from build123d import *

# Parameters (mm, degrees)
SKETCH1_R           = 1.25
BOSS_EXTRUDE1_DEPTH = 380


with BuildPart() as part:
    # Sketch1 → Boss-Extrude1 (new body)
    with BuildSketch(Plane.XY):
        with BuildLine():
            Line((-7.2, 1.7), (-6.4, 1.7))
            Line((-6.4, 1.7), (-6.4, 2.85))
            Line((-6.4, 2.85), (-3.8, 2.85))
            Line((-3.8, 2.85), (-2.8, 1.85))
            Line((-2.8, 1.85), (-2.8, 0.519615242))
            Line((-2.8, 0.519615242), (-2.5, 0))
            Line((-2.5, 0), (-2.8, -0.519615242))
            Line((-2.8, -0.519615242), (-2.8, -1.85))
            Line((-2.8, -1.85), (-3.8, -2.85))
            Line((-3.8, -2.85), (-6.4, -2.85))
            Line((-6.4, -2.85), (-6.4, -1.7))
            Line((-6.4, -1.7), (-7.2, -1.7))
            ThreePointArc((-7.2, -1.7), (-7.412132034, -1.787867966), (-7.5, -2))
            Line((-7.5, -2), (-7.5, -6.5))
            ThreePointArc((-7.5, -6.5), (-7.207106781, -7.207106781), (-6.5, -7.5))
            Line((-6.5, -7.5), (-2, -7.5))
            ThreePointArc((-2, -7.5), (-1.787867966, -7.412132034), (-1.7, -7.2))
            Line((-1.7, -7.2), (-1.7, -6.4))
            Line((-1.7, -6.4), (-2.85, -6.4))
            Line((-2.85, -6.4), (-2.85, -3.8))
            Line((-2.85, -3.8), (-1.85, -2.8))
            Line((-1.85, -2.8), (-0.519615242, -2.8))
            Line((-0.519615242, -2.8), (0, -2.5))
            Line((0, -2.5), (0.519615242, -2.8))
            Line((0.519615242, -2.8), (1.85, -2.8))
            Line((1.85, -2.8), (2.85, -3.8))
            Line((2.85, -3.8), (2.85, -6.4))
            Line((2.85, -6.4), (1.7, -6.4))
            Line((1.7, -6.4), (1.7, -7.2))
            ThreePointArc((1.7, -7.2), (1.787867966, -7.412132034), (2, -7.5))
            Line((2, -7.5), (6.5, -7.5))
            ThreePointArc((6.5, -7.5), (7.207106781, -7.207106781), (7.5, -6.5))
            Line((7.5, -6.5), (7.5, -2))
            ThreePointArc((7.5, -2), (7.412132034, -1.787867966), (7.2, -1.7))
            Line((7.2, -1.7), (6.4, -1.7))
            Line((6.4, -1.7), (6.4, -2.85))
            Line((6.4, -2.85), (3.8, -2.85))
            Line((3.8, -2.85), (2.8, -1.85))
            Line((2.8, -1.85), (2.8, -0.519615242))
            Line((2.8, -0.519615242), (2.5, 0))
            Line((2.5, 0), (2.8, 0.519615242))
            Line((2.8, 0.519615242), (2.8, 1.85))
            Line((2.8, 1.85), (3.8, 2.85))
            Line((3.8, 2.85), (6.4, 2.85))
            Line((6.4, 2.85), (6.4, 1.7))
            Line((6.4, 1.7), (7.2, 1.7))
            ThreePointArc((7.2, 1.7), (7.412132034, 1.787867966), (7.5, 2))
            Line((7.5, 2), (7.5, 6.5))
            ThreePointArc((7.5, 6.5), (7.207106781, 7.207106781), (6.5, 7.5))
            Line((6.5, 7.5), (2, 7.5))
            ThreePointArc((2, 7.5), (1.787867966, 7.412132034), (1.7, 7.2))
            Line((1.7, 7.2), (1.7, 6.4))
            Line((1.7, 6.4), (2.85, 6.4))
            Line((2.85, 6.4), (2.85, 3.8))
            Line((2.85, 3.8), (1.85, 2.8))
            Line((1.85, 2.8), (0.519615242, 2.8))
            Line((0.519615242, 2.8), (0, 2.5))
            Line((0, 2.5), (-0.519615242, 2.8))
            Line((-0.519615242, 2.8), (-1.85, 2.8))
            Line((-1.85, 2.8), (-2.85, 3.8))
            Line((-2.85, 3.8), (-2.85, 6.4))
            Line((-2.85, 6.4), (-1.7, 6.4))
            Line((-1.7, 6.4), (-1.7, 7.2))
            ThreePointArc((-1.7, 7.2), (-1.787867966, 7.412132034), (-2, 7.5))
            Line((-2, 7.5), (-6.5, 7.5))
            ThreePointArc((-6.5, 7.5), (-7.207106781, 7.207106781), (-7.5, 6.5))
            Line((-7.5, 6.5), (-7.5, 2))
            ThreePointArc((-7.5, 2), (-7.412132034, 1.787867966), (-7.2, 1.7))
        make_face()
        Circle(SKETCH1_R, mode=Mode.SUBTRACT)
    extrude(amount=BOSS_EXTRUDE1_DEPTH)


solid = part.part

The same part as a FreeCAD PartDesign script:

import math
import FreeCAD as App
import Part
import Sketcher
Q = App.Units.Quantity

doc = App.newDocument("Part")
params = doc.addObject("Spreadsheet::Sheet", "Params")
for row, (alias, value) in enumerate([
    ("sketch1_radius", "1 mm"),
    ("sketch1_diameter", "2.5 mm"),
    ("sketch1_radius2", "0.3 mm"),
    ("sketch1_width", "0.8 mm"),
    ("sketch1_width2", "2.6 mm"),
    ("pad1_length", "380 mm"),
], start=1):
    params.set(f"A{row}", alias)
    params.set(f"B{row}", "=" + value)
    params.setAlias(f"B{row}", alias)

body = doc.addObject("PartDesign::Body", "Body")

# Sketch on XY plane
sketch1 = body.newObject("Sketcher::SketchObject", "Sketch")
sketch1.AttachmentSupport = (doc.getObject("XY_Plane"), [""])
sketch1.MapMode = "FlatFace"
sketch1.addGeometry([
    Part.LineSegment(App.Vector(-7.2, 1.7, 0), App.Vector(-6.4, 1.7, 0)),  # 0
    Part.LineSegment(App.Vector(-6.4, 1.7, 0), App.Vector(-6.4, 2.85, 0)),  # 1
    Part.LineSegment(App.Vector(-6.4, 2.85, 0), App.Vector(-3.8, 2.85, 0)),  # 2
    Part.LineSegment(App.Vector(-3.8, 2.85, 0), App.Vector(-2.8, 1.85, 0)),  # 3
    Part.LineSegment(App.Vector(-2.8, 1.85, 0), App.Vector(-2.8, 0.52, 0)),  # 4
    Part.LineSegment(App.Vector(-2.8, 0.52, 0), App.Vector(-2.5, 0, 0)),  # 5
    Part.LineSegment(App.Vector(-2.5, 0, 0), App.Vector(-2.8, -0.52, 0)),  # 6
    Part.LineSegment(App.Vector(-2.8, -0.52, 0), App.Vector(-2.8, -1.85, 0)),  # 7
    Part.LineSegment(App.Vector(-2.8, -1.85, 0), App.Vector(-3.8, -2.85, 0)),  # 8
    Part.LineSegment(App.Vector(-3.8, -2.85, 0), App.Vector(-6.4, -2.85, 0)),  # 9
    Part.LineSegment(App.Vector(-6.4, -2.85, 0), App.Vector(-6.4, -1.7, 0)),  # 10
    Part.LineSegment(App.Vector(-6.4, -1.7, 0), App.Vector(-7.2, -1.7, 0)),  # 11
    Part.ArcOfCircle(Part.Circle(App.Vector(-7.2, -2, 0), App.Vector(0, 0, 1), 0.3), math.radians(90), math.radians(180)),  # 12
    Part.LineSegment(App.Vector(-7.5, -2, 0), App.Vector(-7.5, -6.5, 0)),  # 13
    Part.ArcOfCircle(Part.Circle(App.Vector(-6.5, -6.5, 0), App.Vector(0, 0, 1), 1), math.radians(-180), math.radians(-90)),  # 14
    Part.LineSegment(App.Vector(-6.5, -7.5, 0), App.Vector(-2, -7.5, 0)),  # 15
    Part.ArcOfCircle(Part.Circle(App.Vector(-2, -7.2, 0), App.Vector(0, 0, 1), 0.3), math.radians(-90), math.radians(0)),  # 16
    Part.LineSegment(App.Vector(-1.7, -7.2, 0), App.Vector(-1.7, -6.4, 0)),  # 17
    Part.LineSegment(App.Vector(-1.7, -6.4, 0), App.Vector(-2.85, -6.4, 0)),  # 18
    Part.LineSegment(App.Vector(-2.85, -6.4, 0), App.Vector(-2.85, -3.8, 0)),  # 19
    Part.LineSegment(App.Vector(-2.85, -3.8, 0), App.Vector(-1.85, -2.8, 0)),  # 20
    Part.LineSegment(App.Vector(-1.85, -2.8, 0), App.Vector(-0.52, -2.8, 0)),  # 21
    Part.LineSegment(App.Vector(-0.52, -2.8, 0), App.Vector(0, -2.5, 0)),  # 22
    Part.LineSegment(App.Vector(0, -2.5, 0), App.Vector(0.52, -2.8, 0)),  # 23
    Part.LineSegment(App.Vector(0.52, -2.8, 0), App.Vector(1.85, -2.8, 0)),  # 24
    Part.LineSegment(App.Vector(1.85, -2.8, 0), App.Vector(2.85, -3.8, 0)),  # 25
    Part.LineSegment(App.Vector(2.85, -3.8, 0), App.Vector(2.85, -6.4, 0)),  # 26
    Part.LineSegment(App.Vector(2.85, -6.4, 0), App.Vector(1.7, -6.4, 0)),  # 27
    Part.LineSegment(App.Vector(1.7, -6.4, 0), App.Vector(1.7, -7.2, 0)),  # 28
    Part.ArcOfCircle(Part.Circle(App.Vector(2, -7.2, 0), App.Vector(0, 0, 1), 0.3), math.radians(-180), math.radians(-90)),  # 29
    Part.LineSegment(App.Vector(2, -7.5, 0), App.Vector(6.5, -7.5, 0)),  # 30
    Part.ArcOfCircle(Part.Circle(App.Vector(6.5, -6.5, 0), App.Vector(0, 0, 1), 1), math.radians(-90), math.radians(0)),  # 31
    Part.LineSegment(App.Vector(7.5, -6.5, 0), App.Vector(7.5, -2, 0)),  # 32
    Part.ArcOfCircle(Part.Circle(App.Vector(7.2, -2, 0), App.Vector(0, 0, 1), 0.3), math.radians(0), math.radians(90)),  # 33
    Part.LineSegment(App.Vector(7.2, -1.7, 0), App.Vector(6.4, -1.7, 0)),  # 34
    Part.LineSegment(App.Vector(6.4, -1.7, 0), App.Vector(6.4, -2.85, 0)),  # 35
    Part.LineSegment(App.Vector(6.4, -2.85, 0), App.Vector(3.8, -2.85, 0)),  # 36
    Part.LineSegment(App.Vector(3.8, -2.85, 0), App.Vector(2.8, -1.85, 0)),  # 37
    Part.LineSegment(App.Vector(2.8, -1.85, 0), App.Vector(2.8, -0.52, 0)),  # 38
    Part.LineSegment(App.Vector(2.8, -0.52, 0), App.Vector(2.5, 0, 0)),  # 39
    Part.LineSegment(App.Vector(2.5, 0, 0), App.Vector(2.8, 0.52, 0)),  # 40
    Part.LineSegment(App.Vector(2.8, 0.52, 0), App.Vector(2.8, 1.85, 0)),  # 41
    Part.LineSegment(App.Vector(2.8, 1.85, 0), App.Vector(3.8, 2.85, 0)),  # 42
    Part.LineSegment(App.Vector(3.8, 2.85, 0), App.Vector(6.4, 2.85, 0)),  # 43
    Part.LineSegment(App.Vector(6.4, 2.85, 0), App.Vector(6.4, 1.7, 0)),  # 44
    Part.LineSegment(App.Vector(6.4, 1.7, 0), App.Vector(7.2, 1.7, 0)),  # 45
    Part.ArcOfCircle(Part.Circle(App.Vector(7.2, 2, 0), App.Vector(0, 0, 1), 0.3), math.radians(-90), math.radians(0)),  # 46
    Part.LineSegment(App.Vector(7.5, 2, 0), App.Vector(7.5, 6.5, 0)),  # 47
    Part.ArcOfCircle(Part.Circle(App.Vector(6.5, 6.5, 0), App.Vector(0, 0, 1), 1), math.radians(0), math.radians(90)),  # 48
    Part.LineSegment(App.Vector(6.5, 7.5, 0), App.Vector(2, 7.5, 0)),  # 49
    Part.ArcOfCircle(Part.Circle(App.Vector(2, 7.2, 0), App.Vector(0, 0, 1), 0.3), math.radians(90), math.radians(180)),  # 50
    Part.LineSegment(App.Vector(1.7, 7.2, 0), App.Vector(1.7, 6.4, 0)),  # 51
    Part.LineSegment(App.Vector(1.7, 6.4, 0), App.Vector(2.85, 6.4, 0)),  # 52
    Part.LineSegment(App.Vector(2.85, 6.4, 0), App.Vector(2.85, 3.8, 0)),  # 53
    Part.LineSegment(App.Vector(2.85, 3.8, 0), App.Vector(1.85, 2.8, 0)),  # 54
    Part.LineSegment(App.Vector(1.85, 2.8, 0), App.Vector(0.52, 2.8, 0)),  # 55
    Part.LineSegment(App.Vector(0.52, 2.8, 0), App.Vector(0, 2.5, 0)),  # 56
    Part.LineSegment(App.Vector(0, 2.5, 0), App.Vector(-0.52, 2.8, 0)),  # 57
    Part.LineSegment(App.Vector(-0.52, 2.8, 0), App.Vector(-1.85, 2.8, 0)),  # 58
    Part.LineSegment(App.Vector(-1.85, 2.8, 0), App.Vector(-2.85, 3.8, 0)),  # 59
    Part.LineSegment(App.Vector(-2.85, 3.8, 0), App.Vector(-2.85, 6.4, 0)),  # 60
    Part.LineSegment(App.Vector(-2.85, 6.4, 0), App.Vector(-1.7, 6.4, 0)),  # 61
    Part.LineSegment(App.Vector(-1.7, 6.4, 0), App.Vector(-1.7, 7.2, 0)),  # 62
    Part.ArcOfCircle(Part.Circle(App.Vector(-2, 7.2, 0), App.Vector(0, 0, 1), 0.3), math.radians(0), math.radians(90)),  # 63
    Part.LineSegment(App.Vector(-2, 7.5, 0), App.Vector(-6.5, 7.5, 0)),  # 64
    Part.ArcOfCircle(Part.Circle(App.Vector(-6.5, 6.5, 0), App.Vector(0, 0, 1), 1), math.radians(90), math.radians(180)),  # 65
    Part.LineSegment(App.Vector(-7.5, 6.5, 0), App.Vector(-7.5, 2, 0)),  # 66
    Part.ArcOfCircle(Part.Circle(App.Vector(-7.2, 2, 0), App.Vector(0, 0, 1), 0.3), math.radians(-180), math.radians(-90)),  # 67
    Part.Circle(App.Vector(0, 0, 0), App.Vector(0, 0, 1), 1.25),  # 68
], False)
sketch1.addConstraint([
    Sketcher.Constraint("Coincident", 0, 2, 1, 1),
    Sketcher.Constraint("Coincident", 1, 2, 2, 1),
    Sketcher.Constraint("Coincident", 2, 2, 3, 1),
    Sketcher.Constraint("Coincident", 3, 2, 4, 1),
    Sketcher.Constraint("Coincident", 4, 2, 5, 1),
    Sketcher.Constraint("Coincident", 5, 2, 6, 1),
    Sketcher.Constraint("Coincident", 6, 2, 7, 1),
    Sketcher.Constraint("Coincident", 7, 2, 8, 1),
    Sketcher.Constraint("Coincident", 8, 2, 9, 1),
    Sketcher.Constraint("Coincident", 9, 2, 10, 1),
    Sketcher.Constraint("Coincident", 10, 2, 11, 1),
    Sketcher.Constraint("Tangent", 11, 2, 12, 1),
    Sketcher.Constraint("Tangent", 12, 2, 13, 1),
    Sketcher.Constraint("Tangent", 13, 2, 14, 1),
    Sketcher.Constraint("Tangent", 14, 2, 15, 1),
    Sketcher.Constraint("Tangent", 15, 2, 16, 1),
    Sketcher.Constraint("Tangent", 16, 2, 17, 1),
    Sketcher.Constraint("Coincident", 17, 2, 18, 1),
    Sketcher.Constraint("Coincident", 18, 2, 19, 1),
    Sketcher.Constraint("Coincident", 19, 2, 20, 1),
    Sketcher.Constraint("Coincident", 20, 2, 21, 1),
    Sketcher.Constraint("Coincident", 21, 2, 22, 1),
    Sketcher.Constraint("Coincident", 22, 2, 23, 1),
    Sketcher.Constraint("Coincident", 23, 2, 24, 1),
    Sketcher.Constraint("Coincident", 24, 2, 25, 1),
    Sketcher.Constraint("Coincident", 25, 2, 26, 1),
    Sketcher.Constraint("Coincident", 26, 2, 27, 1),
    Sketcher.Constraint("Coincident", 27, 2, 28, 1),
    Sketcher.Constraint("Tangent", 28, 2, 29, 1),
    Sketcher.Constraint("Tangent", 29, 2, 30, 1),
    Sketcher.Constraint("Tangent", 30, 2, 31, 1),
    Sketcher.Constraint("Tangent", 31, 2, 32, 1),
    Sketcher.Constraint("Tangent", 32, 2, 33, 1),
    Sketcher.Constraint("Tangent", 33, 2, 34, 1),
    Sketcher.Constraint("Coincident", 34, 2, 35, 1),
    Sketcher.Constraint("Coincident", 35, 2, 36, 1),
    Sketcher.Constraint("Coincident", 36, 2, 37, 1),
    Sketcher.Constraint("Coincident", 37, 2, 38, 1),
    Sketcher.Constraint("Coincident", 38, 2, 39, 1),
    Sketcher.Constraint("Coincident", 39, 2, 40, 1),
    Sketcher.Constraint("Coincident", 40, 2, 41, 1),
    Sketcher.Constraint("Coincident", 41, 2, 42, 1),
    Sketcher.Constraint("Coincident", 42, 2, 43, 1),
    Sketcher.Constraint("Coincident", 43, 2, 44, 1),
    Sketcher.Constraint("Coincident", 44, 2, 45, 1),
    Sketcher.Constraint("Tangent", 45, 2, 46, 1),
    Sketcher.Constraint("Tangent", 46, 2, 47, 1),
    Sketcher.Constraint("Tangent", 47, 2, 48, 1),
    Sketcher.Constraint("Tangent", 48, 2, 49, 1),
    Sketcher.Constraint("Tangent", 49, 2, 50, 1),
    Sketcher.Constraint("Tangent", 50, 2, 51, 1),
    Sketcher.Constraint("Coincident", 51, 2, 52, 1),
    Sketcher.Constraint("Coincident", 52, 2, 53, 1),
    Sketcher.Constraint("Coincident", 53, 2, 54, 1),
    Sketcher.Constraint("Coincident", 54, 2, 55, 1),
    Sketcher.Constraint("Coincident", 55, 2, 56, 1),
    Sketcher.Constraint("Coincident", 56, 2, 57, 1),
    Sketcher.Constraint("Coincident", 57, 2, 58, 1),
    Sketcher.Constraint("Coincident", 58, 2, 59, 1),
    Sketcher.Constraint("Coincident", 59, 2, 60, 1),
    Sketcher.Constraint("Coincident", 60, 2, 61, 1),
    Sketcher.Constraint("Coincident", 61, 2, 62, 1),
    Sketcher.Constraint("Tangent", 62, 2, 63, 1),
    Sketcher.Constraint("Tangent", 63, 2, 64, 1),
    Sketcher.Constraint("Tangent", 64, 2, 65, 1),
    Sketcher.Constraint("Tangent", 65, 2, 66, 1),
    Sketcher.Constraint("Tangent", 66, 2, 67, 1),
    Sketcher.Constraint("Tangent", 67, 2, 0, 1),
    Sketcher.Constraint("Horizontal", 0),
    Sketcher.Constraint("Vertical", 1),
    Sketcher.Constraint("Horizontal", 2),
    Sketcher.Constraint("Vertical", 4),
    Sketcher.Constraint("Vertical", 7),
    Sketcher.Constraint("Horizontal", 9),
    Sketcher.Constraint("Vertical", 10),
    Sketcher.Constraint("Horizontal", 11),
    Sketcher.Constraint("Vertical", 13),
    Sketcher.Constraint("Horizontal", 15),
    Sketcher.Constraint("Vertical", 17),
    Sketcher.Constraint("Horizontal", 18),
    Sketcher.Constraint("Vertical", 19),
    Sketcher.Constraint("Horizontal", 21),
    Sketcher.Constraint("Horizontal", 24),
    Sketcher.Constraint("Vertical", 26),
    Sketcher.Constraint("Horizontal", 27),
    Sketcher.Constraint("Vertical", 28),
    Sketcher.Constraint("Horizontal", 30),
    Sketcher.Constraint("Vertical", 32),
    Sketcher.Constraint("Horizontal", 34),
    Sketcher.Constraint("Vertical", 35),
    Sketcher.Constraint("Horizontal", 36),
    Sketcher.Constraint("Vertical", 38),
    Sketcher.Constraint("Vertical", 41),
    Sketcher.Constraint("Horizontal", 43),
    Sketcher.Constraint("Vertical", 44),
    Sketcher.Constraint("Horizontal", 45),
    Sketcher.Constraint("Vertical", 47),
    Sketcher.Constraint("Horizontal", 49),
    Sketcher.Constraint("Vertical", 51),
    Sketcher.Constraint("Horizontal", 52),
    Sketcher.Constraint("Vertical", 53),
    Sketcher.Constraint("Horizontal", 55),
    Sketcher.Constraint("Horizontal", 58),
    Sketcher.Constraint("Vertical", 60),
    Sketcher.Constraint("Horizontal", 61),
    Sketcher.Constraint("Vertical", 62),
    Sketcher.Constraint("Horizontal", 64),
    Sketcher.Constraint("Vertical", 66),
    Sketcher.Constraint("Coincident", 68, 3, -1, 1),
    Sketcher.Constraint("Equal", 12, 16),
    Sketcher.Constraint("Equal", 16, 29),
    Sketcher.Constraint("Equal", 14, 31),
    Sketcher.Constraint("Equal", 29, 33),
    Sketcher.Constraint("Equal", 33, 46),
    Sketcher.Constraint("Equal", 31, 48),
    Sketcher.Constraint("Equal", 46, 50),
    Sketcher.Constraint("Equal", 50, 63),
    Sketcher.Constraint("Equal", 48, 65),
    Sketcher.Constraint("Equal", 63, 67),
    Sketcher.Constraint("Symmetric", 12, 3, 46, 3, -1, 1),
    Sketcher.Constraint("Symmetric", 16, 3, 50, 3, -1, 1),
    Sketcher.Constraint("Symmetric", 29, 3, 63, 3, -1, 1),
    Sketcher.Constraint("Symmetric", 33, 3, 67, 3, -1, 1),
    Sketcher.Constraint("Symmetric", 1, 2, 35, 2, -1, 1),
    Sketcher.Constraint("Symmetric", 3, 2, 37, 2, -1, 1),
    Sketcher.Constraint("Symmetric", 5, 2, 39, 2, -1, 1),
    Sketcher.Constraint("Symmetric", 6, 2, 40, 2, -1, 1),
    Sketcher.Constraint("Symmetric", 8, 2, 42, 2, -1, 1),
    Sketcher.Constraint("Symmetric", 18, 2, 52, 2, -1, 1),
    Sketcher.Constraint("Symmetric", 20, 2, 54, 2, -1, 1),
    Sketcher.Constraint("Symmetric", 22, 2, 56, 2, -1, 1),
    Sketcher.Constraint("Symmetric", 23, 2, 57, 2, -1, 1),
    Sketcher.Constraint("Symmetric", 25, 2, 59, 2, -1, 1),
    Sketcher.Constraint("Symmetric", 16, 3, 29, 3, -2),
    Sketcher.Constraint("Symmetric", 12, 3, 33, 3, -2),
    Sketcher.Constraint("Symmetric", 21, 2, 23, 2, -2),
    Sketcher.Constraint("Symmetric", 19, 2, 25, 2, -2),
    Sketcher.Constraint("Symmetric", 9, 2, 35, 2, -2),
    Sketcher.Constraint("Symmetric", 7, 2, 37, 2, -2),
    Sketcher.Constraint("PointOnObject", 5, 2, -1),
    Sketcher.Constraint("PointOnObject", 22, 2, -2),
    Sketcher.Constraint("Perpendicular", 3, 8),
    Sketcher.Constraint("Parallel", 8, 20),
    Sketcher.Constraint("Perpendicular", 5, 22),
    Sketcher.Constraint("Perpendicular", 6, 23),
    Sketcher.Constraint("Perpendicular", 20, 25),
    Sketcher.Constraint("Parallel", 25, 37),
    Sketcher.Constraint("Perpendicular", 22, 39),
    Sketcher.Constraint("Perpendicular", 37, 42),
    Sketcher.Constraint("Parallel", 42, 54),
    Sketcher.Constraint("Perpendicular", 39, 56),
    Sketcher.Constraint("Perpendicular", 54, 59),
    Sketcher.Constraint("Horizontal", 18, 2, 26, 2),
    Sketcher.Constraint("Horizontal", 52, 2, 60, 2),
    Sketcher.Constraint("Vertical", 2, 2, 8, 2),
    Sketcher.Constraint("Vertical", 35, 2, 43, 2),
    Sketcher.Constraint("Equal", 61, 1),
    Sketcher.Constraint("Equal", 58, 4),
    Sketcher.Constraint("Equal", 64, 13),
    Sketcher.Constraint("Equal", 45, 17),
    Sketcher.Constraint("Equal", 43, 19),
    Sketcher.Constraint("Equal", 8, 20),
    Sketcher.Constraint("Equal", 6, 22),
    Sketcher.Constraint("Radius", 14, 1.0),
    Sketcher.Constraint("Diameter", 68, 2.5),
    Sketcher.Constraint("Radius", 12, 0.3),
    Sketcher.Constraint("Angle", 5, Q("-60 deg")),
    Sketcher.Constraint("DistanceX", 0, 1, 0, 2, 0.8),
    Sketcher.Constraint("DistanceX", 2, 1, 2, 2, 2.6),
    Sketcher.Constraint("DistanceX", 15, 1, 15, 2, 4.5),
    Sketcher.Constraint("DistanceY", 12, 3, -1, 1, 2.0),
    Sketcher.Constraint("Distance", 5, 0.6),
    Sketcher.Constraint("DistanceX", 18, 2, 18, 1, 1.15),
    Sketcher.Constraint("DistanceX", 3, 2, -1, 1, 2.8),
])
sketch1.setExpression("Constraints[163]", "Params.sketch1_radius")
sketch1.setExpression("Constraints[164]", "Params.sketch1_diameter")
sketch1.setExpression("Constraints[165]", "Params.sketch1_radius2")
sketch1.setExpression("Constraints[167]", "Params.sketch1_width")
sketch1.setExpression("Constraints[168]", "Params.sketch1_width2")
pad1 = body.newObject("PartDesign::Pad", "Pad")
pad1.Profile = sketch1
pad1.setExpression("Length", "Params.pad1_length")

doc.recompute()
